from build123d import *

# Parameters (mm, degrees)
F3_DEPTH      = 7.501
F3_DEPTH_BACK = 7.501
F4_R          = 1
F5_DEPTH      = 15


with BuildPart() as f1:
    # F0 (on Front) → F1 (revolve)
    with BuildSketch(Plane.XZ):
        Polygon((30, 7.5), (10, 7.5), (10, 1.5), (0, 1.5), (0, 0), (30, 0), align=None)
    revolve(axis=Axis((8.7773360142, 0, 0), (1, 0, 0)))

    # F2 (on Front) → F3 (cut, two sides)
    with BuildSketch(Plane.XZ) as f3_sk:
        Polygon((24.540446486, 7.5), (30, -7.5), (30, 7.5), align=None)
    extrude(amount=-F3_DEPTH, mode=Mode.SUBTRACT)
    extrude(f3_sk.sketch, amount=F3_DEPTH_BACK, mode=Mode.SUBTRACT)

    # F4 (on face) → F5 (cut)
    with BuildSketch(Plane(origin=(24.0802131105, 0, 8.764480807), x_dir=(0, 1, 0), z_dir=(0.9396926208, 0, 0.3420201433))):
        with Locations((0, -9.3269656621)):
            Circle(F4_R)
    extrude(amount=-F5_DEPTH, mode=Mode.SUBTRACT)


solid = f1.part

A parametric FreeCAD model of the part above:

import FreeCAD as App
import Part
import Sketcher
from FreeCAD import Vector
Q = App.Units.Quantity

doc = App.newDocument("Part")
params = doc.addObject("Spreadsheet::Sheet", "Params")
for row, (alias, value) in enumerate([
    ("sketch1_width", "20 mm"),
    ("sketch1_width2", "10 mm"),
    ("sketch1_height", "6 mm"),
    ("sketch1_height2", "1.5 mm"),
    ("revolution_angle", "360 deg"),
    ("sketch2_height", "15 mm"),
    ("sketch3_diameter", "2 mm"),
    ("pocket2_length", "15 mm"),
], start=1):
    params.set(f"A{row}", alias)
    params.set(f"B{row}", "=" + value)
    params.setAlias(f"B{row}", alias)

body = doc.addObject("PartDesign::Body", "Body")

sketch1 = doc.addObject("Sketcher::SketchObject", "Sketch")
body.addObject(sketch1)
sketch1.AttachmentSupport = (doc.XZ_Plane, [""])
sketch1.MapMode = "FlatFace"
sketch1.addGeometry([
    Part.LineSegment(Vector(30, 7.5, 0), Vector(10, 7.5, 0)),
    Part.LineSegment(Vector(10, 7.5, 0), Vector(10, 1.5, 0)),
    Part.LineSegment(Vector(10, 1.5, 0), Vector(0, 1.5, 0)),
    Part.LineSegment(Vector(0, 1.5, 0), Vector(0, 0, 0)),
    Part.LineSegment(Vector(0, 0, 0), Vector(30, 0, 0)),
    Part.LineSegment(Vector(30, 0, 0), Vector(30, 7.5, 0)),
], False)
sketch1.addConstraint([
    Sketcher.Constraint("Coincident", 0, 2, 1, 1),
    Sketcher.Constraint("Coincident", 1, 2, 2, 1),
    Sketcher.Constraint("Coincident", 2, 2, 3, 1),
    Sketcher.Constraint("Coincident", 3, 2, 4, 1),
    Sketcher.Constraint("Coincident", 4, 2, 5, 1),
    Sketcher.Constraint("Coincident", 5, 2, 0, 1),
    Sketcher.Constraint("Horizontal", 0),
    Sketcher.Constraint("Vertical", 1),
    Sketcher.Constraint("Horizontal", 2),
    Sketcher.Constraint("Vertical", 3),
    Sketcher.Constraint("Horizontal", 4),
    Sketcher.Constraint("Vertical", 5),
    Sketcher.Constraint("Coincident", 3, 2, -1, 1),
    Sketcher.Constraint("DistanceX", 0, 2, 0, 1, 20.0),
    Sketcher.Constraint("DistanceX", 2, 2, 2, 1, 10.0),
    Sketcher.Constraint("DistanceY", 1, 2, 1, 1, 6.0),
    Sketcher.Constraint("DistanceY", 3, 2, 3, 1, 1.5),
])
sketch1.setExpression("Constraints[13]", "Params.sketch1_width")
sketch1.setExpression("Constraints[14]", "Params.sketch1_width2")
sketch1.setExpression("Constraints[15]", "Params.sketch1_height")
sketch1.setExpression("Constraints[16]", "Params.sketch1_height2")
revolution = doc.addObject("PartDesign::Revolution", "Revolution")
body.addObject(revolution)
revolution.Profile = sketch1
revolution.ReferenceAxis = (sketch1, ["H_Axis"])
revolution.setExpression("Angle", "Params.revolution_angle")

sketch2 = doc.addObject("Sketcher::SketchObject", "Sketch001")
body.addObject(sketch2)
sketch2.AttachmentSupport = (doc.XZ_Plane, [""])
sketch2.MapMode = "FlatFace"
sketch2.addGeometry([
    Part.LineSegment(Vector(25, 8, 0), Vector(30, -8, 0)),
    Part.LineSegment(Vector(30, -8, 0), Vector(30, 8, 0)),
    Part.LineSegment(Vector(30, 8, 0), Vector(25, 8, 0)),
], False)
sketch2.addConstraint([
    Sketcher.Constraint("Coincident", 0, 2, 1, 1),
    Sketcher.Constraint("Coincident", 1, 2, 2, 1),
    Sketcher.Constraint("Coincident", 2, 2, 0, 1),
    Sketcher.Constraint("Vertical", 1),
    Sketcher.Constraint("Horizontal", 2),
    Sketcher.Constraint("DistanceY", 1, 1, 1, 2, 15.0),
    Sketcher.Constraint("Angle", 0, Q("-70 deg")),
    Sketcher.Constraint("DistanceX", -1, 1, 0, 2, 30.0),
    Sketcher.Constraint("DistanceY", 0, 2, -1, 1, 7.5),
])
sketch2.setExpression("Constraints[5]", "Params.sketch2_height")
pocket1 = doc.addObject("PartDesign::Pocket", "Pocket")
body.addObject(pocket1)
pocket1.Profile = sketch2
pocket1.Type = "ThroughAll"
pocket1.Midplane = True

sketch3 = doc.addObject("Sketcher::SketchObject", "Sketch002")
body.addObject(sketch3)
sketch3.Placement = App.Placement(Vector(24.080213, 0, 8.764481), App.Rotation(Vector(0, 1, 0), Vector(-0.342020143, 0, 0.939692621), Vector(0.939692621, 0, 0.342020143), "ZXY"))
sketch3.addGeometry(Part.Circle(Vector(0, -9.3, 0), Vector(0, 0, 1), 1), False)
sketch3.addConstraint([
    Sketcher.Constraint("PointOnObject", 0, 3, -2),
    Sketcher.Constraint("Diameter", 0, 2.0),
    Sketcher.Constraint("DistanceY", 0, 3, -1, 1, 9.326966),
])
sketch3.setExpression("Constraints[1]", "Params.sketch3_diameter")
pocket2 = doc.addObject("PartDesign::Pocket", "Pocket001")
body.addObject(pocket2)
pocket2.Profile = sketch3
pocket2.setExpression("Length", "Params.pocket2_length")

doc.recompute()
